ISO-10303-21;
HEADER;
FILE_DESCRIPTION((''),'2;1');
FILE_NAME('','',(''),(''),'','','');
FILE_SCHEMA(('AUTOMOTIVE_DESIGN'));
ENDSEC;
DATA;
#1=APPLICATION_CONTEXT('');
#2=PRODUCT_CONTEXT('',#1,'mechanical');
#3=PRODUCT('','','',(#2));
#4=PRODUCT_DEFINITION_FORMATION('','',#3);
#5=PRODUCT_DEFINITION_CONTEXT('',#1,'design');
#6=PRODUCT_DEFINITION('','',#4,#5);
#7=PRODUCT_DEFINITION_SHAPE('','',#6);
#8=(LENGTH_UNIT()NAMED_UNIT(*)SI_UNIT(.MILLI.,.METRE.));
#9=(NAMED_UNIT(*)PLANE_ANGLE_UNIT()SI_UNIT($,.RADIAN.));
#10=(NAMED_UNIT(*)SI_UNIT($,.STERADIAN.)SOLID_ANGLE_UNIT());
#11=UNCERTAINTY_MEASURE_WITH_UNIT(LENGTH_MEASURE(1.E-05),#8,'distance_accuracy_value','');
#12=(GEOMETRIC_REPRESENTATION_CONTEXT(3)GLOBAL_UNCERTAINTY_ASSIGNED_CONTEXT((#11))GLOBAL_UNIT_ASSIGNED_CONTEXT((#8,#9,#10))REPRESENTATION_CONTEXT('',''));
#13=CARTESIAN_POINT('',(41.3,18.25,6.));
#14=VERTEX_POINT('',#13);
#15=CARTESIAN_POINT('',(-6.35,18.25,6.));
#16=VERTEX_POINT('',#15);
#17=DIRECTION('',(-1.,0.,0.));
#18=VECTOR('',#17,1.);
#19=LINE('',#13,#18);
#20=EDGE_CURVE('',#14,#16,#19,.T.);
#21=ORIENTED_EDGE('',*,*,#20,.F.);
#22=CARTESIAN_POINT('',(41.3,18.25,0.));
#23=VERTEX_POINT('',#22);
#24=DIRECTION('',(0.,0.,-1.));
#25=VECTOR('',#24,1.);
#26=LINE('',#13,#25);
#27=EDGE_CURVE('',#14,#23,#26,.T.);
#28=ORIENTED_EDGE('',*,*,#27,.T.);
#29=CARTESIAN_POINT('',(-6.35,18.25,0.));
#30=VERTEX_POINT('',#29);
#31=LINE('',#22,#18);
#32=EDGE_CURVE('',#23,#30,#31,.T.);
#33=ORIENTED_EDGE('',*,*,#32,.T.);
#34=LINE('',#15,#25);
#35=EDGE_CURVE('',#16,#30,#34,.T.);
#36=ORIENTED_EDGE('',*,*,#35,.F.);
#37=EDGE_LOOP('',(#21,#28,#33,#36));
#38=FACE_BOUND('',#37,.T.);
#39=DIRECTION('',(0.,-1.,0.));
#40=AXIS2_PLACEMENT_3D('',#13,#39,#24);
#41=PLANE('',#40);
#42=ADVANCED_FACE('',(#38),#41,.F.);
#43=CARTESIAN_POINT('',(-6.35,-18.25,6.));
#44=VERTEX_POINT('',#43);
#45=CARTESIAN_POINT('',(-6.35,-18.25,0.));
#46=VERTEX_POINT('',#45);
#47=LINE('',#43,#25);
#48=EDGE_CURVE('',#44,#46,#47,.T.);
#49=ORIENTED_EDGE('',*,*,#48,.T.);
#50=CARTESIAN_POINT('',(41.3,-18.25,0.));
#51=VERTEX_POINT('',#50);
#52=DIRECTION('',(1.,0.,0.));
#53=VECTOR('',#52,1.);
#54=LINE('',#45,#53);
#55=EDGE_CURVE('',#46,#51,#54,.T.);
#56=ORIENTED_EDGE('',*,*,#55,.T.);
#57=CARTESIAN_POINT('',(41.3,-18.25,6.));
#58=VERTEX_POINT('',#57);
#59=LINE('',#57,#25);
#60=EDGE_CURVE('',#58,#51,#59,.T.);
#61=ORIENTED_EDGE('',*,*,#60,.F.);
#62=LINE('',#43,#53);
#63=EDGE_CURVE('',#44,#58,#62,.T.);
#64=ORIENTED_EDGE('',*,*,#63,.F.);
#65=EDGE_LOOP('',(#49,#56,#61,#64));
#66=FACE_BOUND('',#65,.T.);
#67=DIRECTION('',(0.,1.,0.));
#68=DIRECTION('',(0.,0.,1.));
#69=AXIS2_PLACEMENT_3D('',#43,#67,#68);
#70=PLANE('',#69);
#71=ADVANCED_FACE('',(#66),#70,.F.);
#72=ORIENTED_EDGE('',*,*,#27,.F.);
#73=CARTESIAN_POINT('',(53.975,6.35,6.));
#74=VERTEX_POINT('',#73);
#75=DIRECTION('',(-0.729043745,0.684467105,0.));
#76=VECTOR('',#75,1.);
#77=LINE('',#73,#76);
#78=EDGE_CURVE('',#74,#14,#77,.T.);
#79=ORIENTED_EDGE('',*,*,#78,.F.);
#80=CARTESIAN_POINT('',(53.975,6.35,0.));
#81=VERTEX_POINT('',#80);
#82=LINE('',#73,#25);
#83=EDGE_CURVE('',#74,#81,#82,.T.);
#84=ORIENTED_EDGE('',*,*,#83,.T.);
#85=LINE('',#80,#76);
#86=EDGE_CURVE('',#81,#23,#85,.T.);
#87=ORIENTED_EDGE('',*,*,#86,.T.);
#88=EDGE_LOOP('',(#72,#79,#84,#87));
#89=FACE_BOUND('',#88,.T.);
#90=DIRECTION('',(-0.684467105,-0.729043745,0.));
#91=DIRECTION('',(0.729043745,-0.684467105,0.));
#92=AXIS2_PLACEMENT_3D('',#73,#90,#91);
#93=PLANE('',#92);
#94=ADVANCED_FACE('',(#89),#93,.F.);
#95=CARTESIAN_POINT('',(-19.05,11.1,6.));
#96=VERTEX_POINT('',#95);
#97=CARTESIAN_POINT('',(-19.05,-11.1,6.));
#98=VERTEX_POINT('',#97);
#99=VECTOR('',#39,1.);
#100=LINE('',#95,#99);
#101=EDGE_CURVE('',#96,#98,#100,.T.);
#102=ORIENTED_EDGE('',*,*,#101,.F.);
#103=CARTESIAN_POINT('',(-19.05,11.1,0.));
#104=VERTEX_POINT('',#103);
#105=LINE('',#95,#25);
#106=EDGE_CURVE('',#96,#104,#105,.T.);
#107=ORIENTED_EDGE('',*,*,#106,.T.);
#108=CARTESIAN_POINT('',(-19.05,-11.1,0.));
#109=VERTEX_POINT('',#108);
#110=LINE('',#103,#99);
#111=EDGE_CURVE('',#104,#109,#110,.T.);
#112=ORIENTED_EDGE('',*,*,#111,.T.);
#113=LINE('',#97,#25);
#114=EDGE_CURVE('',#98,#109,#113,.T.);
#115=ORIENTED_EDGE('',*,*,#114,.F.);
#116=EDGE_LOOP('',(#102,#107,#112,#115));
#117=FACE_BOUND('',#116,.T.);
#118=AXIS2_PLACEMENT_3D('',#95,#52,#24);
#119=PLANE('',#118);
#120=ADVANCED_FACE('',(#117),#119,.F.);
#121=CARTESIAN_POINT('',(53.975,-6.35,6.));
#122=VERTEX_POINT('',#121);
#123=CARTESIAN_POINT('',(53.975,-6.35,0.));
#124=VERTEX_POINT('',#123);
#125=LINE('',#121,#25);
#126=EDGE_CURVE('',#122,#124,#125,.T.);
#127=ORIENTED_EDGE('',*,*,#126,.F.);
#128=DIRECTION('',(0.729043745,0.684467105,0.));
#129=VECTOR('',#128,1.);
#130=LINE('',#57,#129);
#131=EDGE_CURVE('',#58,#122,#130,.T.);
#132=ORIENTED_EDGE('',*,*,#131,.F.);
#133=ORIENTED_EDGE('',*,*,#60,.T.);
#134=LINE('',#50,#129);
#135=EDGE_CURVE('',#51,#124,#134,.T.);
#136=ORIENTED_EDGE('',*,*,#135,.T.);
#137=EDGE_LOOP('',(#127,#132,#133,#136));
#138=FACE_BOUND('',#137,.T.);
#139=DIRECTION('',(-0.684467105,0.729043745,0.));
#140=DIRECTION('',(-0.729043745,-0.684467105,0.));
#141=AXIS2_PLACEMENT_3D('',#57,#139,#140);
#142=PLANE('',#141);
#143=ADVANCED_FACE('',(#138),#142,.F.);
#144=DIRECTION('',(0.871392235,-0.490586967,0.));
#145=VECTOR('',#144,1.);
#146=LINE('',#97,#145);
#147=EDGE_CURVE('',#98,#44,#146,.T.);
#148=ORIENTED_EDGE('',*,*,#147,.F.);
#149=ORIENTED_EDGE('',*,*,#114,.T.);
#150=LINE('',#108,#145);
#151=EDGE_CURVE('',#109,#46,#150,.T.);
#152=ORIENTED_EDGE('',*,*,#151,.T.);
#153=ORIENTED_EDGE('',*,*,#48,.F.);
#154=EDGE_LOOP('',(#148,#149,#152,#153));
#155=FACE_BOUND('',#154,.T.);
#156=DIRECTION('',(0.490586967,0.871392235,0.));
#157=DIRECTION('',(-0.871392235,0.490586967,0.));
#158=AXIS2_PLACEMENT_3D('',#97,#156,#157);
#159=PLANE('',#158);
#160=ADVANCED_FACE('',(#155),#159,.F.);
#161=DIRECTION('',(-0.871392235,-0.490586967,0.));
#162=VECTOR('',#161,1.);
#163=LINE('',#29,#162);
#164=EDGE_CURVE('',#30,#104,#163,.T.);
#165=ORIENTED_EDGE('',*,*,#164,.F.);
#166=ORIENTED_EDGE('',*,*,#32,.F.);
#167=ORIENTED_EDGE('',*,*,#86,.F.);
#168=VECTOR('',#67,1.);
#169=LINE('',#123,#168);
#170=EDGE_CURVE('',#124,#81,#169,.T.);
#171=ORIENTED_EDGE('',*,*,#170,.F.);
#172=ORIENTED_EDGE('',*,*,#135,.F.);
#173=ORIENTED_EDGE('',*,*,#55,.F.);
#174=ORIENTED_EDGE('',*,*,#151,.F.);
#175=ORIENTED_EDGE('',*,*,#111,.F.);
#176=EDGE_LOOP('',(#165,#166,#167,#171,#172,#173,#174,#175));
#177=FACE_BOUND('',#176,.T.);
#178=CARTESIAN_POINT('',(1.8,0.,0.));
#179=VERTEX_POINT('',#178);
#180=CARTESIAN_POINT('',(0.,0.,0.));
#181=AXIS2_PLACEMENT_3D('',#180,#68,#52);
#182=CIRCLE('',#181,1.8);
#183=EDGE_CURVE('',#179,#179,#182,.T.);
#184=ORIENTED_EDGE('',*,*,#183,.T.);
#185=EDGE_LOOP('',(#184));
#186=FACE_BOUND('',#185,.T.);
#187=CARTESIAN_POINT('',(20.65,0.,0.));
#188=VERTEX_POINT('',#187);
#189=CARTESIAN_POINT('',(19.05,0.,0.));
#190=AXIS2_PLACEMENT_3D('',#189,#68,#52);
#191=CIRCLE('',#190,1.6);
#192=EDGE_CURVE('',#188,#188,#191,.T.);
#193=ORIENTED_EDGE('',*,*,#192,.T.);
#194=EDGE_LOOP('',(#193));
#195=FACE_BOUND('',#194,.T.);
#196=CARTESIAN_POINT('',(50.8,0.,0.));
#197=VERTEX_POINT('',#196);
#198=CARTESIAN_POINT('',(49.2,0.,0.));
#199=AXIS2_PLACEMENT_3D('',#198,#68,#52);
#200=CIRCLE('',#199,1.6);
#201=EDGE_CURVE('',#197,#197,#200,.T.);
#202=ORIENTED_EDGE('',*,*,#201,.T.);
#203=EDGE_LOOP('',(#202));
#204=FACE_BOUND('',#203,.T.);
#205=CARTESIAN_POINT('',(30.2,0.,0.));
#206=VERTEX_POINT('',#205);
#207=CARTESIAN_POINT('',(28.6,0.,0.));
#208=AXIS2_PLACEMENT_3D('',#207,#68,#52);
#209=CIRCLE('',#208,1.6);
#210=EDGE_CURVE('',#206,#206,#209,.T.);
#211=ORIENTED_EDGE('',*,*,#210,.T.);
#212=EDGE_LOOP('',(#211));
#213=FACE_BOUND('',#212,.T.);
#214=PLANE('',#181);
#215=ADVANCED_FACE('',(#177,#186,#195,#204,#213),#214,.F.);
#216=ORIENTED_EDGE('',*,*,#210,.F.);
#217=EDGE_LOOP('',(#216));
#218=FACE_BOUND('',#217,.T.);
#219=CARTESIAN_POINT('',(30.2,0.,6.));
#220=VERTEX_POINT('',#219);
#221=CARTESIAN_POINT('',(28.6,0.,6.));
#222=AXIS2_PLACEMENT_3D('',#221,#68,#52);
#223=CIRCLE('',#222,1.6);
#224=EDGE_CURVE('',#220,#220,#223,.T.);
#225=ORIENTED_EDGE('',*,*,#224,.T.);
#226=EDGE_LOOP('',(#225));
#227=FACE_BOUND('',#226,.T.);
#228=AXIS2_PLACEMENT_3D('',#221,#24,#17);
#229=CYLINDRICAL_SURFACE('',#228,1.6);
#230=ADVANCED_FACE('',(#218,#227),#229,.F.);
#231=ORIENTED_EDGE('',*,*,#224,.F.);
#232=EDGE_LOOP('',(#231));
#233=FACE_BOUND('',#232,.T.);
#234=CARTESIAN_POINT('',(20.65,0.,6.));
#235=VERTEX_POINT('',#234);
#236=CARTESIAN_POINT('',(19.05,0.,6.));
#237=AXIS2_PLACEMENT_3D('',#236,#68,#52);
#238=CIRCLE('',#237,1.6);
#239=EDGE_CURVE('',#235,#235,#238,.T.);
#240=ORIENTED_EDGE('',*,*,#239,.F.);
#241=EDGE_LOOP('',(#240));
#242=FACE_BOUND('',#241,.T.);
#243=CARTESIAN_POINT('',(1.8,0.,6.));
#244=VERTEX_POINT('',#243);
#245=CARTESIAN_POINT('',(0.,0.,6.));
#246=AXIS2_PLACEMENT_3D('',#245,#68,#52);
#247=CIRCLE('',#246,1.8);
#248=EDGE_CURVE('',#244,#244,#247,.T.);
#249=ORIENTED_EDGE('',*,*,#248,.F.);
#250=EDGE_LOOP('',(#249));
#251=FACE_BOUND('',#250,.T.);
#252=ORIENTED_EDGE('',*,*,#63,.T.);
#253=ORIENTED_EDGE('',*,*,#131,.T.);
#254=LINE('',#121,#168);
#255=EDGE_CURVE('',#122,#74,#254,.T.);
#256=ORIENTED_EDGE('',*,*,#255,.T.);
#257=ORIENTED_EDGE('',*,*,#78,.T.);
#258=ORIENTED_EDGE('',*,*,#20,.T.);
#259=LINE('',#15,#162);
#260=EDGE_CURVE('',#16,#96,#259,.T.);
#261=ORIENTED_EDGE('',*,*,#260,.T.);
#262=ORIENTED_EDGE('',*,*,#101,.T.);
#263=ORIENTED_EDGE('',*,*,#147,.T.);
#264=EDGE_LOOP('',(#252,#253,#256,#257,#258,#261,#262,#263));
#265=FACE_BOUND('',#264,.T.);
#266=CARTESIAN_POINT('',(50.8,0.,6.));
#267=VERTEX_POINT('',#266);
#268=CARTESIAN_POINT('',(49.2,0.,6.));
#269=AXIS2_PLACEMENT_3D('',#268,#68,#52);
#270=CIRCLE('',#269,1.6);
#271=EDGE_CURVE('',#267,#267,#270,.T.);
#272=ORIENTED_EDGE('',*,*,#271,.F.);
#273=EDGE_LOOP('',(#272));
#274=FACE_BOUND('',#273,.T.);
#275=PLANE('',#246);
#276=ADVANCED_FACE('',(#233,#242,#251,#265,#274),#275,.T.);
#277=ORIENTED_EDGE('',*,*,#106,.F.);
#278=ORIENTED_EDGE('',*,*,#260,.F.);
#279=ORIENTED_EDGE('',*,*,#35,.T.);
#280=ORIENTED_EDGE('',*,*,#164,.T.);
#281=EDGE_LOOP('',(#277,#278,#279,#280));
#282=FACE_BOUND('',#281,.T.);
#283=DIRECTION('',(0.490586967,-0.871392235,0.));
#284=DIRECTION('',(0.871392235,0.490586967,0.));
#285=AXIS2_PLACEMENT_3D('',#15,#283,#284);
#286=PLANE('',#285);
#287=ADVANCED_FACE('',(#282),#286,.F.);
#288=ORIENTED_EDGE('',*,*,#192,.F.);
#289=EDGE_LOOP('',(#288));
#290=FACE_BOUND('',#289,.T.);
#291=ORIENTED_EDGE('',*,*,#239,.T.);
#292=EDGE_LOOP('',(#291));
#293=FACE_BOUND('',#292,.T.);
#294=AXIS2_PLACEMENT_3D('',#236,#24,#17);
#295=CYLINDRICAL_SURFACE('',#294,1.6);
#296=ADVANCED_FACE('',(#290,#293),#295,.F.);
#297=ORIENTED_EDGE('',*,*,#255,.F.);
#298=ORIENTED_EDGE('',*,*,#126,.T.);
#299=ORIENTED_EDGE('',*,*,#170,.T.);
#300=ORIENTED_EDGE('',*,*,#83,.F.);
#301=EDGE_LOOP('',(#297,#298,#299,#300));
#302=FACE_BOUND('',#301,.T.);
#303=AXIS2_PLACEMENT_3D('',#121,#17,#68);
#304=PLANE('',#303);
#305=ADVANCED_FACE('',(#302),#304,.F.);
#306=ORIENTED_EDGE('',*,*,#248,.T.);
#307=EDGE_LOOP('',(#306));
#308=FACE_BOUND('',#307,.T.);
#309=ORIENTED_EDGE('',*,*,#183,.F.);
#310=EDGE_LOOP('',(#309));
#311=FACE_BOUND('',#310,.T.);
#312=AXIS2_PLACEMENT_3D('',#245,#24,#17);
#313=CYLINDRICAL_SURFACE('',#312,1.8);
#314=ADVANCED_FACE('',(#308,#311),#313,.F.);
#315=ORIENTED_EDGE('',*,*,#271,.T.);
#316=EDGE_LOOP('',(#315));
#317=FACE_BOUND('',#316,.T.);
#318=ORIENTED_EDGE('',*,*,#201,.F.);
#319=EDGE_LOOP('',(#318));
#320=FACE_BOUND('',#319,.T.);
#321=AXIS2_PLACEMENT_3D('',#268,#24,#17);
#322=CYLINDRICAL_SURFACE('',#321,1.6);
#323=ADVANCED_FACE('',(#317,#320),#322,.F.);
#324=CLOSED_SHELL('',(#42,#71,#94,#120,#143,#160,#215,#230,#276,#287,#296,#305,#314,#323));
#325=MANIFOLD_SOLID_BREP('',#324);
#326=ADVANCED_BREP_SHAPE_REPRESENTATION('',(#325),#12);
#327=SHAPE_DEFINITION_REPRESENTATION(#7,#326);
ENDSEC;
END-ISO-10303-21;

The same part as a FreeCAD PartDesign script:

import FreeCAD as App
import Part
import Sketcher

doc = App.newDocument("Part")
body = doc.addObject("PartDesign::Body", "Body")

# Sketch on XY plane
sketch1 = body.newObject("Sketcher::SketchObject", "Sketch")
sketch1.AttachmentSupport = (doc.getObject("XY_Plane"), [""])
sketch1.MapMode = "FlatFace"
sketch1.addGeometry([
    Part.LineSegment(App.Vector(-19.1, -11.1, 0), App.Vector(-6.3, -18.2, 0)),  # 0
    Part.LineSegment(App.Vector(-6.3, -18.2, 0), App.Vector(41.3, -18.2, 0)),  # 1
    Part.LineSegment(App.Vector(41.3, -18.2, 0), App.Vector(54, -6.3, 0)),  # 2
    Part.LineSegment(App.Vector(54, -6.3, 0), App.Vector(54, 6.3, 0)),  # 3
    Part.LineSegment(App.Vector(54, 6.3, 0), App.Vector(41.3, 18.2, 0)),  # 4
    Part.LineSegment(App.Vector(41.3, 18.2, 0), App.Vector(-6.3, 18.2, 0)),  # 5
    Part.LineSegment(App.Vector(-6.3, 18.2, 0), App.Vector(-19.1, 11.1, 0)),  # 6
    Part.LineSegment(App.Vector(-19.1, 11.1, 0), App.Vector(-19.1, -11.1, 0)),  # 7
    Part.Circle(App.Vector(0, 0, 0), App.Vector(0, 0, 1), 1.8),  # 8
    Part.Circle(App.Vector(19.1, 0, 0), App.Vector(0, 0, 1), 1.6),  # 9
    Part.Circle(App.Vector(28.6, 0, 0), App.Vector(0, 0, 1), 1.6),  # 10
    Part.Circle(App.Vector(49.2, 0, 0), App.Vector(0, 0, 1), 1.6),  # 11
], False)
sketch1.addConstraint([
    Sketcher.Constraint("Coincident", 0, 2, 1, 1),
    Sketcher.Constraint("Coincident", 1, 2, 2, 1),
    Sketcher.Constraint("Coincident", 2, 2, 3, 1),
    Sketcher.Constraint("Coincident", 3, 2, 4, 1),
    Sketcher.Constraint("Coincident", 4, 2, 5, 1),
    Sketcher.Constraint("Coincident", 5, 2, 6, 1),
    Sketcher.Constraint("Coincident", 6, 2, 7, 1),
    Sketcher.Constraint("Coincident", 7, 2, 0, 1),
    Sketcher.Constraint("Horizontal", 1),
    Sketcher.Constraint("Vertical", 3),
    Sketcher.Constraint("Horizontal", 5),
    Sketcher.Constraint("Vertical", 7),
    Sketcher.Constraint("Coincident", 8, 3, -1, 1),
    Sketcher.Constraint("Equal", 9, 10),
    Sketcher.Constraint("Equal", 10, 11),
    Sketcher.Constraint("Symmetric", 1, 2, 4, 2, -1),
    Sketcher.Constraint("PointOnObject", 9, 3, -1),
    Sketcher.Constraint("PointOnObject", 10, 3, -1),
    Sketcher.Constraint("PointOnObject", 11, 3, -1),
    Sketcher.Constraint("Vertical", 0, 2, 5, 2),
    Sketcher.Constraint("Equal", 2, 4),
    Sketcher.Constraint("Equal", 0, 6),
    Sketcher.Constraint("Diameter", 8, 3.6),
    Sketcher.Constraint("Diameter", 9, 3.2),
    Sketcher.Constraint("DistanceY", 3, 1, 3, 2, 12.7),
    Sketcher.Constraint("DistanceY", 7, 2, 7, 1, 22.2),
    Sketcher.Constraint("DistanceX", 1, 1, 1, 2, 47.65),
    Sketcher.Constraint("DistanceX", -1, 1, 10, 3, 28.6),
    Sketcher.Constraint("DistanceX", -1, 1, 11, 3, 49.2),
    Sketcher.Constraint("DistanceX", -1, 1, 1, 2, 41.3),
    Sketcher.Constraint("DistanceX", 0, 2, 9, 3, 25.4),
    Sketcher.Constraint("DistanceY", 1, 2, 2, 2, 11.9),
    Sketcher.Constraint("DistanceX", 6, 2, 5, 2, 12.7),
    Sketcher.Constraint("DistanceX", -1, 1, 2, 2, 53.975),
])
pad1 = body.newObject("PartDesign::Pad", "Pad")
pad1.Profile = sketch1
pad1.Length = 6

doc.recompute()
